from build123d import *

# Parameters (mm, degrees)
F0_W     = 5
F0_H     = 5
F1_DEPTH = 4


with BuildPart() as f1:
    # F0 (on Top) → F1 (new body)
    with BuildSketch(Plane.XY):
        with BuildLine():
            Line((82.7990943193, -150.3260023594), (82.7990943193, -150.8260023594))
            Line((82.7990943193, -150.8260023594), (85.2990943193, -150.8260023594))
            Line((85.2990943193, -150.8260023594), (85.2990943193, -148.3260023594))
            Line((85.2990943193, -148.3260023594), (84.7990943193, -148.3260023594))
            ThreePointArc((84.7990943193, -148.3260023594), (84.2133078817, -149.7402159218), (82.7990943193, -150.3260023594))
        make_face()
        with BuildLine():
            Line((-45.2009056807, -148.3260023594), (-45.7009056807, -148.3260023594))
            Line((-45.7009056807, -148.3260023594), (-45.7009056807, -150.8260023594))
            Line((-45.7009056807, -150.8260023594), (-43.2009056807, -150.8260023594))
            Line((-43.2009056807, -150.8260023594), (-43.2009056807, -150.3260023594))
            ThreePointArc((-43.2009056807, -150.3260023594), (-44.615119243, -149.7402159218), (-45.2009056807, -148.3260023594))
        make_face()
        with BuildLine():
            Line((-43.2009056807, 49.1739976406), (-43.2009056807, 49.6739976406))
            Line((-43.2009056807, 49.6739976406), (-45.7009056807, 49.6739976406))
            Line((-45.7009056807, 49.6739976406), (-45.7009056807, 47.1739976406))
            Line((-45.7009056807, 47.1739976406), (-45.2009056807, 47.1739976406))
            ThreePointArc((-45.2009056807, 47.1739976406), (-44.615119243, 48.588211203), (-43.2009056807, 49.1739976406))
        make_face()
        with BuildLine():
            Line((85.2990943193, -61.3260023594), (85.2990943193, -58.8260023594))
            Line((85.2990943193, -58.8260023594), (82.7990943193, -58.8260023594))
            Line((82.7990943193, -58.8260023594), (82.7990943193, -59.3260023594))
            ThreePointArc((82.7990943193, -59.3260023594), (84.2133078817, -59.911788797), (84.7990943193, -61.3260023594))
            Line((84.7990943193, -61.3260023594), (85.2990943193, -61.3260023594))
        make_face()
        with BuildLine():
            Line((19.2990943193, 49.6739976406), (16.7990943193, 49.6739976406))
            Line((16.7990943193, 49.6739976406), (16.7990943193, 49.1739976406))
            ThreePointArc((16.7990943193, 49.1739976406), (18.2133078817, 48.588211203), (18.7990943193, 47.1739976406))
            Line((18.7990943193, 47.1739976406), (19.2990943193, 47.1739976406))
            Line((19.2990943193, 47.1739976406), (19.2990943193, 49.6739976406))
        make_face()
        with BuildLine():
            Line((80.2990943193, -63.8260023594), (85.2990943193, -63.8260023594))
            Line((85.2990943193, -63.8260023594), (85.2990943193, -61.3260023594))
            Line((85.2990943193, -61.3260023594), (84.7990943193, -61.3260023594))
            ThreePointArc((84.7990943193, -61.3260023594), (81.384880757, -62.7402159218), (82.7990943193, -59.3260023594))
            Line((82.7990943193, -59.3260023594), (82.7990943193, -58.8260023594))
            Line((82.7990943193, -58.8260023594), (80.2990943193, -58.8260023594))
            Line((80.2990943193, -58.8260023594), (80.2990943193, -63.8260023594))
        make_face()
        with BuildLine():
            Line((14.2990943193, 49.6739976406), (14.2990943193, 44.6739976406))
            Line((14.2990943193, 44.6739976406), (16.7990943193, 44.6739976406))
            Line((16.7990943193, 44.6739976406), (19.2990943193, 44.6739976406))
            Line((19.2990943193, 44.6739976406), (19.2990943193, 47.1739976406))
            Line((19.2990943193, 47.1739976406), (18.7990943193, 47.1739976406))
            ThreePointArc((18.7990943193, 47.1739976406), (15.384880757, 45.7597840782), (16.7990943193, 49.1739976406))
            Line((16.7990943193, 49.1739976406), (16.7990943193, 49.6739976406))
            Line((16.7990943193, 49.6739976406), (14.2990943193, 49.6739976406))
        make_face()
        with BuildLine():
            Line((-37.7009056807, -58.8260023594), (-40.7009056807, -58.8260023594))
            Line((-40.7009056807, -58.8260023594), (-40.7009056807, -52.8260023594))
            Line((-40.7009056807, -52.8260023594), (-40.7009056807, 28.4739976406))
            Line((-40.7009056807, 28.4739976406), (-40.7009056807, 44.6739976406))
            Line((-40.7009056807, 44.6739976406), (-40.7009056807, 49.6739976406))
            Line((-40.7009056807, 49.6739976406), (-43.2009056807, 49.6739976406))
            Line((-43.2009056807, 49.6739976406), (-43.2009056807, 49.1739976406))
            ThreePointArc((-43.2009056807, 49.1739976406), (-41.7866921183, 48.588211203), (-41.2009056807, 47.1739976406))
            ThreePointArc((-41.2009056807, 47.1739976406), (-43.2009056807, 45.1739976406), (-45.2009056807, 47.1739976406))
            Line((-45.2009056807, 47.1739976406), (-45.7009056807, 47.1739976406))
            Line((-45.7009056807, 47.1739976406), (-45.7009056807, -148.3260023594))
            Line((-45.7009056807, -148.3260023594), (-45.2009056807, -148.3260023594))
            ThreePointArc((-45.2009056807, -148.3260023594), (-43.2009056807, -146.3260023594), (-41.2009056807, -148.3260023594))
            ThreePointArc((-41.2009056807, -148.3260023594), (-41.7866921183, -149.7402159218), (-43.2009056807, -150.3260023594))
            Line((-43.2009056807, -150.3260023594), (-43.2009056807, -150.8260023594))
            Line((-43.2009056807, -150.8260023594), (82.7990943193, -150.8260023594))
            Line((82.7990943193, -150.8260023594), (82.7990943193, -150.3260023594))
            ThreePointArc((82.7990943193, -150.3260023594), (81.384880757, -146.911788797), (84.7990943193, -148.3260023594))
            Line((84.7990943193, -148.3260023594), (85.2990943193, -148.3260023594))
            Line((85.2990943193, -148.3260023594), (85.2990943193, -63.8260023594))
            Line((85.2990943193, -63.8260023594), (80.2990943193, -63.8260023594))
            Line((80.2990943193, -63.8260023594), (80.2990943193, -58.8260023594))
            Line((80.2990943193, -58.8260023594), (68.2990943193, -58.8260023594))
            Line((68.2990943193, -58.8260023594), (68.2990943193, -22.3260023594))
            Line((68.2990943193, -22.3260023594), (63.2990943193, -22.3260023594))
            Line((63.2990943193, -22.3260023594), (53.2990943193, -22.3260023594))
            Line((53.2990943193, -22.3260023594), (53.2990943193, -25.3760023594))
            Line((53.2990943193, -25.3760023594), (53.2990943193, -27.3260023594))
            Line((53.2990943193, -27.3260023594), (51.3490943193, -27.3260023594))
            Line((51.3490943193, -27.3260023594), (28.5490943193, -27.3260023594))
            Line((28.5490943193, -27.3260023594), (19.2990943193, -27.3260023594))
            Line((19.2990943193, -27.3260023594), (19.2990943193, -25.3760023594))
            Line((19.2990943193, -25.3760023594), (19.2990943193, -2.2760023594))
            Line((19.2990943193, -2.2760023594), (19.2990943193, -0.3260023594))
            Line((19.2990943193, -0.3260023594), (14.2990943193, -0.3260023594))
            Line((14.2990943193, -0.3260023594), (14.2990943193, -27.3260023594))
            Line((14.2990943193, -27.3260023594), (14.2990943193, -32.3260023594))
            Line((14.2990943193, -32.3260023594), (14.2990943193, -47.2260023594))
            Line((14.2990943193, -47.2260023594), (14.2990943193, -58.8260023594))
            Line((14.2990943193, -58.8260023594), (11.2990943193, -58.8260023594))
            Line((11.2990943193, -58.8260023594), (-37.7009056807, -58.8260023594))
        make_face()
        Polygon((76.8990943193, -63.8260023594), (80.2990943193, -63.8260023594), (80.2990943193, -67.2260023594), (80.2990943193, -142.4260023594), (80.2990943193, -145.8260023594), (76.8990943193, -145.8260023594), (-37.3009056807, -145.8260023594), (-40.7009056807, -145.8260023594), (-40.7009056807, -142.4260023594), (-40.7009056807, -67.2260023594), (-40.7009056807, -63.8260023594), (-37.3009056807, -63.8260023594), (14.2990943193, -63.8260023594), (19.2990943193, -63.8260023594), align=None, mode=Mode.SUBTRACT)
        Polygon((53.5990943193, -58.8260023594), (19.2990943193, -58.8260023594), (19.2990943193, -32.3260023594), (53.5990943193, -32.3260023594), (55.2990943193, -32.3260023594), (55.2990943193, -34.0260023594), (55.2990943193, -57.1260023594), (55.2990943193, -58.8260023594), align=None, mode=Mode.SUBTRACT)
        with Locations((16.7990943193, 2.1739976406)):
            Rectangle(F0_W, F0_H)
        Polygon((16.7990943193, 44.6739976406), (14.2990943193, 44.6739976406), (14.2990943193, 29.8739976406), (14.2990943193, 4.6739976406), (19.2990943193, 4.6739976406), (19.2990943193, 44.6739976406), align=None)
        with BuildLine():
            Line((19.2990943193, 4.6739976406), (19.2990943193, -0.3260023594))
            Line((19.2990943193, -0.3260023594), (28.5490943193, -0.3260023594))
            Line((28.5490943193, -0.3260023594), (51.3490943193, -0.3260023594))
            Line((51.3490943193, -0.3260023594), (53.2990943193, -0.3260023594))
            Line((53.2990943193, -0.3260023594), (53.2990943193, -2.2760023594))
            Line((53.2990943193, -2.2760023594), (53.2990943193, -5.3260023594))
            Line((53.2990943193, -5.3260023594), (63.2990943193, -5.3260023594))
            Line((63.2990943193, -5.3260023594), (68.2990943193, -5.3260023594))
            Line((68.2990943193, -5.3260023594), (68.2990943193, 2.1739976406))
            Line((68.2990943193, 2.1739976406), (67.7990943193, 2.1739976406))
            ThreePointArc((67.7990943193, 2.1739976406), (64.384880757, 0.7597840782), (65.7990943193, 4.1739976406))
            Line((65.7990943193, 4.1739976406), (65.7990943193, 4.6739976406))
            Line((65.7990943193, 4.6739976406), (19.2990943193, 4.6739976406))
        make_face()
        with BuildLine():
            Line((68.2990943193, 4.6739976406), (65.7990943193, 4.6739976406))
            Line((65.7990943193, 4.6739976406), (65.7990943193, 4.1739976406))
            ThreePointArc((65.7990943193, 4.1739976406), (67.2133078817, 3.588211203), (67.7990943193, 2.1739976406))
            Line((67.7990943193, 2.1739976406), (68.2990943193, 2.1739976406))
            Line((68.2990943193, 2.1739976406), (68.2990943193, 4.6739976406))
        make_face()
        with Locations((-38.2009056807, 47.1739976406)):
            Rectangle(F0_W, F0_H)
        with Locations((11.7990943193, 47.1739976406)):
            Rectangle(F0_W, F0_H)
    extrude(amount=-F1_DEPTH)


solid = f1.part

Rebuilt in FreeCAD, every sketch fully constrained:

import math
import FreeCAD as App
import Part
import Sketcher
from FreeCAD import Vector

doc = App.newDocument("Part")
body = doc.addObject("PartDesign::Body", "Body")

# Sketch on XY plane
sketch1 = doc.addObject("Sketcher::SketchObject", "Sketch")
body.addObject(sketch1)
sketch1.AttachmentSupport = (doc.XY_Plane, [""])
sketch1.MapMode = "FlatFace"
sketch1.addGeometry([
    Part.LineSegment(Vector(85.3, -150.8, 0), Vector(85.3, -58.8, 0)),  # 0
    Part.LineSegment(Vector(85.3, -58.8, 0), Vector(68.3, -58.8, 0)),  # 1
    Part.LineSegment(Vector(68.3, -58.8, 0), Vector(68.3, -22.3, 0)),  # 2
    Part.LineSegment(Vector(68.3, -22.3, 0), Vector(53.3, -22.3, 0)),  # 3
    Part.LineSegment(Vector(53.3, -22.3, 0), Vector(53.3, -27.3, 0)),  # 4
    Part.LineSegment(Vector(53.3, -27.3, 0), Vector(19.3, -27.3, 0)),  # 5
    Part.LineSegment(Vector(19.3, -27.3, 0), Vector(19.3, -0.3, 0)),  # 6
    Part.LineSegment(Vector(19.3, -0.3, 0), Vector(53.3, -0.3, 0)),  # 7
    Part.LineSegment(Vector(53.3, -0.3, 0), Vector(53.3, -5.3, 0)),  # 8
    Part.LineSegment(Vector(53.3, -5.3, 0), Vector(68.3, -5.3, 0)),  # 9
    Part.LineSegment(Vector(68.3, -5.3, 0), Vector(68.3, 4.7, 0)),  # 10
    Part.LineSegment(Vector(68.3, 4.7, 0), Vector(19.3, 4.7, 0)),  # 11
    Part.LineSegment(Vector(19.3, 4.7, 0), Vector(19.3, 49.7, 0)),  # 12
    Part.LineSegment(Vector(19.3, 49.7, 0), Vector(9.3, 49.7, 0)),  # 13
    Part.LineSegment(Vector(9.3, 49.7, 0), Vector(9.3, 44.7, 0)),  # 14
    Part.LineSegment(Vector(9.3, 44.7, 0), Vector(14.3, 44.7, 0)),  # 15
    Part.LineSegment(Vector(14.3, 44.7, 0), Vector(14.3, -58.8, 0)),  # 16
    Part.LineSegment(Vector(14.3, -58.8, 0), Vector(-40.7, -58.8, 0)),  # 17
    Part.LineSegment(Vector(-40.7, -58.8, 0), Vector(-40.7, 44.7, 0)),  # 18
    Part.LineSegment(Vector(-40.7, 44.7, 0), Vector(-35.7, 44.7, 0)),  # 19
    Part.LineSegment(Vector(-35.7, 44.7, 0), Vector(-35.7, 49.7, 0)),  # 20
    Part.LineSegment(Vector(-35.7, 49.7, 0), Vector(-45.7, 49.7, 0)),  # 21
    Part.LineSegment(Vector(-45.7, 49.7, 0), Vector(-45.7, -150.8, 0)),  # 22
    Part.LineSegment(Vector(-45.7, -150.8, 0), Vector(85.3, -150.8, 0)),  # 23
    Part.ArcOfCircle(Part.Circle(Vector(65.8, 2.2, 0), Vector(0, 0, 1), 2), math.radians(90), math.radians(360)),  # 24
    Part.ArcOfCircle(Part.Circle(Vector(65.8, 2.2, 0), Vector(0, 0, 1), 2), math.radians(0), math.radians(90)),  # 25
    Part.ArcOfCircle(Part.Circle(Vector(-43.2, -148.3, 0), Vector(0, 0, 1), 2), math.radians(0), math.radians(180)),  # 26
    Part.ArcOfCircle(Part.Circle(Vector(-43.2, -148.3, 0), Vector(0, 0, 1), 2), math.radians(-90), math.radians(0)),  # 27
    Part.ArcOfCircle(Part.Circle(Vector(-43.2, -148.3, 0), Vector(0, 0, 1), 2), math.radians(180), math.radians(270)),  # 28
    Part.LineSegment(Vector(-40.7, -63.8, 0), Vector(80.3, -63.8, 0)),  # 29
    Part.LineSegment(Vector(80.3, -63.8, 0), Vector(80.3, -145.8, 0)),  # 30
    Part.LineSegment(Vector(80.3, -145.8, 0), Vector(-40.7, -145.8, 0)),  # 31
    Part.LineSegment(Vector(-40.7, -145.8, 0), Vector(-40.7, -63.8, 0)),  # 32
    Part.ArcOfCircle(Part.Circle(Vector(82.8, -148.3, 0), Vector(0, 0, 1), 2), math.radians(-90), math.radians(0)),  # 33
    Part.ArcOfCircle(Part.Circle(Vector(82.8, -148.3, 0), Vector(0, 0, 1), 2), math.radians(0), math.radians(270)),  # 34
    Part.ArcOfCircle(Part.Circle(Vector(82.8, -61.3, 0), Vector(0, 0, 1), 2), math.radians(0), math.radians(90)),  # 35
    Part.ArcOfCircle(Part.Circle(Vector(82.8, -61.3, 0), Vector(0, 0, 1), 2), math.radians(90), math.radians(360)),  # 36
    Part.ArcOfCircle(Part.Circle(Vector(-43.2, 47.2, 0), Vector(0, 0, 1), 2), math.radians(0), math.radians(90)),  # 37
    Part.ArcOfCircle(Part.Circle(Vector(-43.2, 47.2, 0), Vector(0, 0, 1), 2), math.radians(180), math.radians(360)),  # 38
    Part.ArcOfCircle(Part.Circle(Vector(-43.2, 47.2, 0), Vector(0, 0, 1), 2), math.radians(90), math.radians(180)),  # 39
    Part.LineSegment(Vector(55.3, -58.8, 0), Vector(19.3, -58.8, 0)),  # 40
    Part.LineSegment(Vector(19.3, -58.8, 0), Vector(19.3, -32.3, 0)),  # 41
    Part.LineSegment(Vector(19.3, -32.3, 0), Vector(55.3, -32.3, 0)),  # 42
    Part.LineSegment(Vector(55.3, -32.3, 0), Vector(55.3, -58.8, 0)),  # 43
    Part.ArcOfCircle(Part.Circle(Vector(16.8, 47.2, 0), Vector(0, 0, 1), 2), math.radians(90), math.radians(360)),  # 44
    Part.ArcOfCircle(Part.Circle(Vector(16.8, 47.2, 0), Vector(0, 0, 1), 2), math.radians(0), math.radians(90)),  # 45
], False)
sketch1.addConstraint([
    Sketcher.Constraint("Coincident", 0, 2, 1, 1),
    Sketcher.Constraint("Coincident", 1, 2, 2, 1),
    Sketcher.Constraint("Coincident", 2, 2, 3, 1),
    Sketcher.Constraint("Coincident", 3, 2, 4, 1),
    Sketcher.Constraint("Coincident", 4, 2, 5, 1),
    Sketcher.Constraint("Coincident", 5, 2, 6, 1),
    Sketcher.Constraint("Coincident", 6, 2, 7, 1),
    Sketcher.Constraint("Coincident", 7, 2, 8, 1),
    Sketcher.Constraint("Coincident", 8, 2, 9, 1),
    Sketcher.Constraint("Coincident", 9, 2, 10, 1),
    Sketcher.Constraint("Coincident", 10, 2, 11, 1),
    Sketcher.Constraint("Coincident", 11, 2, 12, 1),
    Sketcher.Constraint("Coincident", 12, 2, 13, 1),
    Sketcher.Constraint("Coincident", 13, 2, 14, 1),
    Sketcher.Constraint("Coincident", 14, 2, 15, 1),
    Sketcher.Constraint("Coincident", 15, 2, 16, 1),
    Sketcher.Constraint("Coincident", 16, 2, 17, 1),
    Sketcher.Constraint("Coincident", 17, 2, 18, 1),
    Sketcher.Constraint("Coincident", 18, 2, 19, 1),
    Sketcher.Constraint("Coincident", 19, 2, 20, 1),
    Sketcher.Constraint("Coincident", 20, 2, 21, 1),
    Sketcher.Constraint("Coincident", 21, 2, 22, 1),
    Sketcher.Constraint("Coincident", 22, 2, 23, 1),
    Sketcher.Constraint("Coincident", 23, 2, 0, 1),
    Sketcher.Constraint("Tangent", 24, 1, 25, 2),
    Sketcher.Constraint("Coincident", 25, 1, 24, 2),
    Sketcher.Constraint("Tangent", 26, 1, 27, 2),
    Sketcher.Constraint("Tangent", 27, 1, 28, 2),
    Sketcher.Constraint("Tangent", 28, 1, 26, 2),
    Sketcher.Constraint("Coincident", 29, 2, 30, 1),
    Sketcher.Constraint("Coincident", 30, 2, 31, 1),
    Sketcher.Constraint("Coincident", 31, 2, 32, 1),
    Sketcher.Constraint("Coincident", 32, 2, 29, 1),
    Sketcher.Constraint("Tangent", 33, 1, 34, 2),
    Sketcher.Constraint("Coincident", 34, 1, 33, 2),
    Sketcher.Constraint("Tangent", 35, 1, 36, 2),
    Sketcher.Constraint("Coincident", 36, 1, 35, 2),
    Sketcher.Constraint("Tangent", 37, 1, 38, 2),
    Sketcher.Constraint("Tangent", 38, 1, 39, 2),
    Sketcher.Constraint("Tangent", 39, 1, 37, 2),
    Sketcher.Constraint("Coincident", 40, 2, 41, 1),
    Sketcher.Constraint("Coincident", 41, 2, 42, 1),
    Sketcher.Constraint("Coincident", 42, 2, 43, 1),
    Sketcher.Constraint("Coincident", 43, 2, 40, 1),
    Sketcher.Constraint("Tangent", 44, 1, 45, 2),
    Sketcher.Constraint("Coincident", 45, 1, 44, 2),
    Sketcher.Constraint("Vertical", 0),
    Sketcher.Constraint("Horizontal", 1),
    Sketcher.Constraint("Vertical", 2),
    Sketcher.Constraint("Horizontal", 3),
    Sketcher.Constraint("Vertical", 4),
    Sketcher.Constraint("Horizontal", 5),
    Sketcher.Constraint("Vertical", 6),
    Sketcher.Constraint("Horizontal", 7),
    Sketcher.Constraint("Vertical", 8),
    Sketcher.Constraint("Horizontal", 9),
    Sketcher.Constraint("Vertical", 10),
    Sketcher.Constraint("Horizontal", 11),
    Sketcher.Constraint("Vertical", 12),
    Sketcher.Constraint("Horizontal", 13),
    Sketcher.Constraint("Vertical", 14),
    Sketcher.Constraint("Horizontal", 15),
    Sketcher.Constraint("Vertical", 16),
    Sketcher.Constraint("Horizontal", 17),
    Sketcher.Constraint("Vertical", 18),
    Sketcher.Constraint("Horizontal", 19),
    Sketcher.Constraint("Vertical", 20),
    Sketcher.Constraint("Horizontal", 21),
    Sketcher.Constraint("Vertical", 22),
    Sketcher.Constraint("Horizontal", 23),
    Sketcher.Constraint("Horizontal", 29),
    Sketcher.Constraint("Vertical", 30),
    Sketcher.Constraint("Horizontal", 31),
    Sketcher.Constraint("Vertical", 32),
    Sketcher.Constraint("Horizontal", 40),
    Sketcher.Constraint("Vertical", 41),
    Sketcher.Constraint("Horizontal", 42),
    Sketcher.Constraint("Vertical", 43),
    Sketcher.Constraint("Equal", 25, 26),
    Sketcher.Constraint("Equal", 28, 33),
    Sketcher.Constraint("Equal", 34, 35),
    Sketcher.Constraint("Equal", 36, 37),
    Sketcher.Constraint("Equal", 39, 44),
    Sketcher.Constraint("Horizontal", 28, 3, 33, 3),
    Sketcher.Constraint("Horizontal", 39, 3, 44, 3),
    Sketcher.Constraint("Horizontal", 1, 2, 16, 2),
    Sketcher.Constraint("Horizontal", 15, 2, 18, 2),
    Sketcher.Constraint("Horizontal", 13, 2, 20, 2),
    Sketcher.Constraint("Horizontal", 24, 3, 25, 1),
    Sketcher.Constraint("Horizontal", 34, 3, 26, 1),
    Sketcher.Constraint("Horizontal", 26, 1, 28, 1),
    Sketcher.Constraint("Horizontal", 28, 1, 34, 1),
    Sketcher.Constraint("Horizontal", 36, 3, 35, 1),
    Sketcher.Constraint("Horizontal", 45, 3, 37, 1),
    Sketcher.Constraint("Horizontal", 37, 1, 38, 1),
    Sketcher.Constraint("Horizontal", 17, 2, 40, 2),
    Sketcher.Constraint("Horizontal", 38, 1, 45, 1),
    Sketcher.Constraint("Vertical", 34, 3, 35, 3),
    Sketcher.Constraint("Vertical", 28, 3, 37, 3),
    Sketcher.Constraint("Vertical", 4, 2, 7, 2),
    Sketcher.Constraint("Vertical", 2, 2, 9, 2),
    Sketcher.Constraint("Vertical", 6, 2, 11, 2),
    Sketcher.Constraint("Vertical", 25, 3, 24, 1),
    Sketcher.Constraint("Vertical", 39, 3, 27, 1),
    Sketcher.Constraint("Vertical", 18, 2, 31, 2),
    Sketcher.Constraint("Vertical", 36, 3, 33, 1),
    Sketcher.Constraint("Vertical", 33, 1, 36, 1),
    Sketcher.Constraint("Vertical", 27, 1, 39, 1),
    Sketcher.Constraint("Vertical", 12, 2, 40, 2),
    Sketcher.Constraint("Vertical", 45, 3, 44, 1),
    Sketcher.Constraint("Equal", 15, 19),
    Sketcher.Constraint("Equal", 13, 21),
    Sketcher.Constraint("Equal", 19, 4),
    Sketcher.Constraint("Equal", 4, 8),
    Sketcher.Constraint("Equal", 21, 10),
    Sketcher.Constraint("Equal", 8, 14),
    Sketcher.Constraint("Radius", 24, 2.0),
    Sketcher.Constraint("DistanceX", 1, 2, 1, 1, 17.0),
    Sketcher.Constraint("DistanceX", 3, 2, 3, 1, 15.0),
    Sketcher.Constraint("DistanceX", 5, 2, 5, 1, 34.0),
    Sketcher.Constraint("DistanceX", 13, 2, 13, 1, 10.0),
    Sketcher.Constraint("DistanceX", 15, 1, 15, 2, 5.0),
    Sketcher.Constraint("DistanceX", 17, 2, 17, 1, 55.0),
    Sketcher.Constraint("DistanceX", 29, 1, 29, 2, 121.0),
    Sketcher.Constraint("DistanceX", 40, 2, 40, 1, 36.0),
    Sketcher.Constraint("DistanceY", 0, 1, 0, 2, 92.0),
    Sketcher.Constraint("DistanceY", 6, 1, 6, 2, 27.0),
    Sketcher.Constraint("DistanceY", 12, 1, 12, 2, 45.0),
    Sketcher.Constraint("DistanceY", 30, 2, 30, 1, 82.0),
    Sketcher.Constraint("DistanceY", 2, 1, 2, 2, 36.5),
    Sketcher.Constraint("DistanceY", 41, 1, 41, 2, 26.5),
    Sketcher.Constraint("DistanceX", 26, 3, 24, 3, 109.0),
    Sketcher.Constraint("DistanceX", 26, 3, 33, 3, 126.0),
    Sketcher.Constraint("DistanceY", 33, 3, 35, 3, 87.0),
    Sketcher.Constraint("DistanceY", 24, 3, 37, 3, 45.0),
    Sketcher.Constraint("DistanceX", 37, 3, 44, 3, 60.0),
    Sketcher.Constraint("DistanceY", 0, 2, 24, 3, 61.0),
    Sketcher.Constraint("DistanceY", 35, 3, 2, 2, 39.0),
    Sketcher.Constraint("DistanceY", 29, 2, 0, 2, 5.0),
    Sketcher.Constraint("DistanceX", 35, 3, 0, 2, 2.5),
    Sketcher.Constraint("DistanceX", -1, 1, 24, 3, 65.799094),
    Sketcher.Constraint("DistanceY", -1, 1, 24, 3, 2.173998),
])
pad1 = doc.addObject("PartDesign::Pad", "Pad")
body.addObject(pad1)
pad1.Profile = sketch1
pad1.Length = 4
pad1.Reversed = True

doc.recompute()
